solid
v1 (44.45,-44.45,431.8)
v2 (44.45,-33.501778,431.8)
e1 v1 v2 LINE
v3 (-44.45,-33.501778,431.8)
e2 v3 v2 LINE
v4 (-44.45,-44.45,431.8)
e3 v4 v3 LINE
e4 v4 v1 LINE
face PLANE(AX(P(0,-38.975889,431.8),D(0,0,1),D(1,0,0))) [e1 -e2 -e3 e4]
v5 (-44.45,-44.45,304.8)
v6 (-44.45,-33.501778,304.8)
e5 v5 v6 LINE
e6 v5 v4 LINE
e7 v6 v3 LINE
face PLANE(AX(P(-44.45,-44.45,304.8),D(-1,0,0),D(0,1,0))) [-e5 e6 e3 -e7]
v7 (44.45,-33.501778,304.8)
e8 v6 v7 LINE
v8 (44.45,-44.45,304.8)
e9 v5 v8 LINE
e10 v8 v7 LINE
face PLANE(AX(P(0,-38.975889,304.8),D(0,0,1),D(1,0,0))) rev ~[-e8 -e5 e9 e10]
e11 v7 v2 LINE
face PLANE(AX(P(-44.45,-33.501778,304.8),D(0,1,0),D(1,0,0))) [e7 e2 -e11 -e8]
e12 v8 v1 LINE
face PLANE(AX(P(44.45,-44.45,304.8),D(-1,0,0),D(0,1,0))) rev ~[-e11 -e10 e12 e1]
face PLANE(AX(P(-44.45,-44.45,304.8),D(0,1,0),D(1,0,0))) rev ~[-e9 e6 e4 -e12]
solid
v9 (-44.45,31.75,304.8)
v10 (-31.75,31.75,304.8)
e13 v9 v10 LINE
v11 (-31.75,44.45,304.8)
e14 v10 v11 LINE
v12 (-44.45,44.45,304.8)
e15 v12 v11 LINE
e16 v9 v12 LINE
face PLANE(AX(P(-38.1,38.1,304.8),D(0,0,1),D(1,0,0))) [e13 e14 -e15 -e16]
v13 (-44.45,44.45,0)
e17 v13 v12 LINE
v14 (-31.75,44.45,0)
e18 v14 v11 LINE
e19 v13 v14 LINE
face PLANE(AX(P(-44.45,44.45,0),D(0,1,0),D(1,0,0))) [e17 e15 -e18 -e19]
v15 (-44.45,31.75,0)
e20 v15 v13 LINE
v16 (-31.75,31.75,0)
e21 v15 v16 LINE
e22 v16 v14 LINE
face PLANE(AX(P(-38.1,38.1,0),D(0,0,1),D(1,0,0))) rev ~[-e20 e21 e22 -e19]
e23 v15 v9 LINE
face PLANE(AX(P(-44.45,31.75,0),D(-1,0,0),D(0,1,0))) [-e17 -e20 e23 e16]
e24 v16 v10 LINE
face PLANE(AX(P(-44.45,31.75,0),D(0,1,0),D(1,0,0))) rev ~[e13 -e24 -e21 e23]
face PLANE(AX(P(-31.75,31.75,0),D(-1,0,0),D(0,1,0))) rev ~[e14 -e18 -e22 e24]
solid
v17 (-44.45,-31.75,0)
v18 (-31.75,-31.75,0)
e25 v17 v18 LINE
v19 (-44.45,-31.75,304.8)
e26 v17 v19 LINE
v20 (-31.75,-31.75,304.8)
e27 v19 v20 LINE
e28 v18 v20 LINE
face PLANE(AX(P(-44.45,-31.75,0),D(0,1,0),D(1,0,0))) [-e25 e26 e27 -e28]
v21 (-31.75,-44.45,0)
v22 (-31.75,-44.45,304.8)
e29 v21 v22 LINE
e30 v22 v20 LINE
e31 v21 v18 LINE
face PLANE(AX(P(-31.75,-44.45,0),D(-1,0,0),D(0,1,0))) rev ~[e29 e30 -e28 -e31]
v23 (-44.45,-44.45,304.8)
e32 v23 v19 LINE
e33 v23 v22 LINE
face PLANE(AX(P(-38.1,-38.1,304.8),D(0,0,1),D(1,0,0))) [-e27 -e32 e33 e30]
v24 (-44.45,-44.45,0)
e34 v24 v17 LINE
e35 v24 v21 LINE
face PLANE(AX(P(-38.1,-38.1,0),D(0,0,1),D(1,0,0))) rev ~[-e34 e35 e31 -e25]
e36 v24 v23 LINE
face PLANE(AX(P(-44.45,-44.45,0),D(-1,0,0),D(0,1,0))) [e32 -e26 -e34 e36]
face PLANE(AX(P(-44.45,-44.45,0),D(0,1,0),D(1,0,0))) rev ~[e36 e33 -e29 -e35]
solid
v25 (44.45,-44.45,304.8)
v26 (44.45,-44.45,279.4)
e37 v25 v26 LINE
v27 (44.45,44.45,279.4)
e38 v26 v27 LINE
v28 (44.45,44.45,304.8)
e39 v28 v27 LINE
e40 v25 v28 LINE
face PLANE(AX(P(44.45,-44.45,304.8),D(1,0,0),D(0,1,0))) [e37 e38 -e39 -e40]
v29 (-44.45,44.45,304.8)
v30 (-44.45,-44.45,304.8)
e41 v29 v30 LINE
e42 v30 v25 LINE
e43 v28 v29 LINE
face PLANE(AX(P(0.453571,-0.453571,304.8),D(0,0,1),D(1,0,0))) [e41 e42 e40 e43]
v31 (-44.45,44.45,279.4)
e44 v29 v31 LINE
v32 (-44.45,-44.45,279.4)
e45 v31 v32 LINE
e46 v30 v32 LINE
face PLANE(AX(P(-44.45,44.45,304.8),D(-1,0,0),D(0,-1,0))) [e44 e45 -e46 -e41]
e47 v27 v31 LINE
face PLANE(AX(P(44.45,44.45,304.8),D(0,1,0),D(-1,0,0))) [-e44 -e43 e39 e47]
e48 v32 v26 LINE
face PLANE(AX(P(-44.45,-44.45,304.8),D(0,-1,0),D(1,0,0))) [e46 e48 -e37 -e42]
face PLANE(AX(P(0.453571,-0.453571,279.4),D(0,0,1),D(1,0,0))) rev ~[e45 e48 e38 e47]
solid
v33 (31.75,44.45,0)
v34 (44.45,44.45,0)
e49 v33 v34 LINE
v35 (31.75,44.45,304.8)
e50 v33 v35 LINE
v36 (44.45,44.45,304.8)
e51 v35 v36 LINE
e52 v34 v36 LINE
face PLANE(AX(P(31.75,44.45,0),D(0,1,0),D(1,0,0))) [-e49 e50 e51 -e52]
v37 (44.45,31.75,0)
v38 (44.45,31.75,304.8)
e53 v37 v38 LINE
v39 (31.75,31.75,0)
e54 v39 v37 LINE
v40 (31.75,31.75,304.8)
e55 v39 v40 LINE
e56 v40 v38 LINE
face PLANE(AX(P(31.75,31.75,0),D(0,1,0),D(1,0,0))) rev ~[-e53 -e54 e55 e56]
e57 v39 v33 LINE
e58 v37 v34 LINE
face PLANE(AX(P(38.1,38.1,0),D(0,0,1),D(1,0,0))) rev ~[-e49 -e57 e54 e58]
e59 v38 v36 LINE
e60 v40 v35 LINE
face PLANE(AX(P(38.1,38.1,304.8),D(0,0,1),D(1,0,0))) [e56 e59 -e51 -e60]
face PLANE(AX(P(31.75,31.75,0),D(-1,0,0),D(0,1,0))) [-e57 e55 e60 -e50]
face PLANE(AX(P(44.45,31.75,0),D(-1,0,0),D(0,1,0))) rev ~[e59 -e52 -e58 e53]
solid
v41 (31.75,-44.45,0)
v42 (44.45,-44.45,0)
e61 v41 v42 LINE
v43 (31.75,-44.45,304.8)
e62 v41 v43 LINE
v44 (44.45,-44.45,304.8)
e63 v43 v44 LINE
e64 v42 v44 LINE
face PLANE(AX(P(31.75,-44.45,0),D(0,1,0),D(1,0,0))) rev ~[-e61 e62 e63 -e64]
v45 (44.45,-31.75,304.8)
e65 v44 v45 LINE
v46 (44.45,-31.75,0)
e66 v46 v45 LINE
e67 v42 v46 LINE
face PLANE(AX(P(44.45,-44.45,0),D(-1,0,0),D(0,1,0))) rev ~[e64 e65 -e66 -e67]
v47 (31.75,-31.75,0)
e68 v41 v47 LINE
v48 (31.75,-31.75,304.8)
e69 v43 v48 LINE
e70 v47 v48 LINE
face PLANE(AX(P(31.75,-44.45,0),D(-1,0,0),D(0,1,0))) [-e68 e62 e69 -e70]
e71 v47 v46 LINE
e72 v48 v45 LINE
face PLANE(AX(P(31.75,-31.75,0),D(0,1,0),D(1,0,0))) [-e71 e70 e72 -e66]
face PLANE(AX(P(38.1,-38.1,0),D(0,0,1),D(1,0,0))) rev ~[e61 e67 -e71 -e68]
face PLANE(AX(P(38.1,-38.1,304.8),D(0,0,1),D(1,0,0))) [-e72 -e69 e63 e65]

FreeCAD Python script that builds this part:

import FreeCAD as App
import Part
import Sketcher
Q = App.Units.Quantity

doc = App.newDocument("Part")
body = doc.addObject("PartDesign::Body", "Body")

# Sketch on XY plane
sketch1 = body.newObject("Sketcher::SketchObject", "Sketch")
sketch1.AttachmentSupport = (doc.getObject("XY_Plane"), [""])
sketch1.MapMode = "FlatFace"
sketch1.addGeometry([
    Part.LineSegment(App.Vector(-44, -32, 0), App.Vector(-44, -44, 0)),
    Part.LineSegment(App.Vector(-44, -44, 0), App.Vector(-32, -44, 0)),
    Part.LineSegment(App.Vector(-32, -44, 0), App.Vector(-32, -32, 0)),
    Part.LineSegment(App.Vector(-32, -32, 0), App.Vector(-44, -32, 0)),
], False)
sketch1.addConstraint([
    Sketcher.Constraint("Coincident", 0, 2, 1, 1),
    Sketcher.Constraint("Coincident", 1, 2, 2, 1),
    Sketcher.Constraint("Coincident", 2, 2, 3, 1),
    Sketcher.Constraint("Coincident", 3, 2, 0, 1),
    Sketcher.Constraint("Vertical", 0),
    Sketcher.Constraint("Horizontal", 1),
    Sketcher.Constraint("Vertical", 2),
    Sketcher.Constraint("Horizontal", 3),
    Sketcher.Constraint("Equal", 3, 0),
    Sketcher.Constraint("DistanceX", 1, 1, 1, 2, Q("0.5 in")),
    Sketcher.Constraint("DistanceX", 0, 2, -1, 1, Q("1.75 in")),
    Sketcher.Constraint("DistanceY", 0, 2, -1, 1, Q("1.75 in")),
])
pad1 = body.newObject("PartDesign::Pad", "Pad")
pad1.Profile = sketch1
pad1.Length = Q("12 in")
body2 = doc.addObject("PartDesign::Body", "Body001")

# Sketch on XY plane
sketch2 = body2.newObject("Sketcher::SketchObject", "Sketch001")
sketch2.AttachmentSupport = (doc.getObject("XY_Plane001"), [""])
sketch2.MapMode = "FlatFace"
sketch2.addGeometry([
    Part.LineSegment(App.Vector(32, 44, 0), App.Vector(32, 32, 0)),
    Part.LineSegment(App.Vector(32, 32, 0), App.Vector(44, 32, 0)),
    Part.LineSegment(App.Vector(44, 32, 0), App.Vector(44, 44, 0)),
    Part.LineSegment(App.Vector(44, 44, 0), App.Vector(32, 44, 0)),
], False)
sketch2.addConstraint([
    Sketcher.Constraint("Coincident", 0, 2, 1, 1),
    Sketcher.Constraint("Coincident", 1, 2, 2, 1),
    Sketcher.Constraint("Coincident", 2, 2, 3, 1),
    Sketcher.Constraint("Coincident", 3, 2, 0, 1),
    Sketcher.Constraint("Vertical", 0),
    Sketcher.Constraint("Horizontal", 1),
    Sketcher.Constraint("Vertical", 2),
    Sketcher.Constraint("Horizontal", 3),
    Sketcher.Constraint("Equal", 3, 0),
    Sketcher.Constraint("DistanceX", 1, 1, 1, 2, Q("0.5 in")),
    Sketcher.Constraint("DistanceX", -1, 1, 0, 2, Q("1.25 in")),
    Sketcher.Constraint("DistanceY", -1, 1, 0, 2, Q("1.25 in")),
])
pad2 = body2.newObject("PartDesign::Pad", "Pad001")
pad2.Profile = sketch2
pad2.Length = Q("12 in")
body3 = doc.addObject("PartDesign::Body", "Body002")

# Sketch on XY plane
sketch3 = body3.newObject("Sketcher::SketchObject", "Sketch002")
sketch3.AttachmentSupport = (doc.getObject("XY_Plane002"), [""])
sketch3.MapMode = "FlatFace"
sketch3.addGeometry([
    Part.LineSegment(App.Vector(32, -32, 0), App.Vector(32, -44, 0)),
    Part.LineSegment(App.Vector(32, -44, 0), App.Vector(44, -44, 0)),
    Part.LineSegment(App.Vector(44, -44, 0), App.Vector(44, -32, 0)),
    Part.LineSegment(App.Vector(44, -32, 0), App.Vector(32, -32, 0)),
], False)
sketch3.addConstraint([
    Sketcher.Constraint("Coincident", 0, 2, 1, 1),
    Sketcher.Constraint("Coincident", 1, 2, 2, 1),
    Sketcher.Constraint("Coincident", 2, 2, 3, 1),
    Sketcher.Constraint("Coincident", 3, 2, 0, 1),
    Sketcher.Constraint("Vertical", 0),
    Sketcher.Constraint("Horizontal", 1),
    Sketcher.Constraint("Vertical", 2),
    Sketcher.Constraint("Horizontal", 3),
    Sketcher.Constraint("Equal", 3, 0),
    Sketcher.Constraint("DistanceX", 1, 1, 1, 2, Q("0.5 in")),
    Sketcher.Constraint("DistanceX", -1, 1, 0, 2, Q("1.25 in")),
    Sketcher.Constraint("DistanceY", 0, 2, -1, 1, Q("1.75 in")),
])
pad3 = body3.newObject("PartDesign::Pad", "Pad002")
pad3.Profile = sketch3
pad3.Length = Q("12 in")
body4 = doc.addObject("PartDesign::Body", "Body003")

# Sketch on XY plane
sketch4 = body4.newObject("Sketcher::SketchObject", "Sketch003")
sketch4.AttachmentSupport = (doc.getObject("XY_Plane003"), [""])
sketch4.MapMode = "FlatFace"
sketch4.addGeometry([
    Part.LineSegment(App.Vector(-44, 44, 0), App.Vector(-44, 32, 0)),
    Part.LineSegment(App.Vector(-44, 32, 0), App.Vector(-32, 32, 0)),
    Part.LineSegment(App.Vector(-32, 32, 0), App.Vector(-32, 44, 0)),
    Part.LineSegment(App.Vector(-32, 44, 0), App.Vector(-44, 44, 0)),
], False)
sketch4.addConstraint([
    Sketcher.Constraint("Coincident", 0, 2, 1, 1),
    Sketcher.Constraint("Coincident", 1, 2, 2, 1),
    Sketcher.Constraint("Coincident", 2, 2, 3, 1),
    Sketcher.Constraint("Coincident", 3, 2, 0, 1),
    Sketcher.Constraint("Vertical", 0),
    Sketcher.Constraint("Horizontal", 1),
    Sketcher.Constraint("Vertical", 2),
    Sketcher.Constraint("Horizontal", 3),
    Sketcher.Constraint("Equal", 3, 0),
    Sketcher.Constraint("DistanceX", 1, 1, 1, 2, Q("0.5 in")),
    Sketcher.Constraint("DistanceX", 0, 2, -1, 1, Q("1.75 in")),
    Sketcher.Constraint("DistanceY", -1, 1, 0, 2, Q("1.25 in")),
])
pad4 = body4.newObject("PartDesign::Pad", "Pad003")
pad4.Profile = sketch4
pad4.Length = Q("12 in")
body5 = doc.addObject("PartDesign::Body", "Body004")

# Sketch on XY plane
sketch5 = body5.newObject("Sketcher::SketchObject", "Sketch004")
sketch5.AttachmentSupport = (doc.getObject("XY_Plane004"), [""])
sketch5.MapMode = "FlatFace"
sketch5.AttachmentOffset = App.Placement(App.Vector(0, 0, 12 * 25.4), App.Rotation())
sketch5.addGeometry([
    Part.LineSegment(App.Vector(44, 44, 0), App.Vector(-44, 44, 0)),
    Part.LineSegment(App.Vector(-44, 44, 0), App.Vector(-44, -44, 0)),
    Part.LineSegment(App.Vector(-44, -44, 0), App.Vector(44, -44, 0)),
    Part.LineSegment(App.Vector(44, -44, 0), App.Vector(44, 44, 0)),
], False)
sketch5.addConstraint([
    Sketcher.Constraint("Coincident", 0, 2, 1, 1),
    Sketcher.Constraint("Coincident", 1, 2, 2, 1),
    Sketcher.Constraint("Coincident", 2, 2, 3, 1),
    Sketcher.Constraint("Coincident", 3, 2, 0, 1),
    Sketcher.Constraint("Horizontal", 0),
    Sketcher.Constraint("Vertical", 1),
    Sketcher.Constraint("Horizontal", 2),
    Sketcher.Constraint("Vertical", 3),
    Sketcher.Constraint("Symmetric", 0, 2, 2, 2, -1, 1),
    Sketcher.Constraint("Equal", 2, 1),
    Sketcher.Constraint("DistanceX", 0, 2, 0, 1, Q("3.5 in")),
])
pad5 = body5.newObject("PartDesign::Pad", "Pad004")
pad5.Profile = sketch5
pad5.Length = Q("1 in")
pad5.Reversed = True
body6 = doc.addObject("PartDesign::Body", "Body005")

# Sketch on XY plane
sketch6 = body6.newObject("Sketcher::SketchObject", "Sketch005")
sketch6.AttachmentSupport = (doc.getObject("XY_Plane005"), [""])
sketch6.MapMode = "FlatFace"
sketch6.AttachmentOffset = App.Placement(App.Vector(0, 0, 12 * 25.4), App.Rotation())
sketch6.addGeometry([
    Part.LineSegment(App.Vector(-44, -34, 0), App.Vector(-44, -44, 0)),
    Part.LineSegment(App.Vector(-44, -44, 0), App.Vector(44, -44, 0)),
    Part.LineSegment(App.Vector(44, -44, 0), App.Vector(44, -34, 0)),
    Part.LineSegment(App.Vector(44, -34, 0), App.Vector(-44, -34, 0)),
], False)
sketch6.addConstraint([
    Sketcher.Constraint("Coincident", 0, 2, 1, 1),
    Sketcher.Constraint("Coincident", 1, 2, 2, 1),
    Sketcher.Constraint("Coincident", 2, 2, 3, 1),
    Sketcher.Constraint("Coincident", 3, 2, 0, 1),
    Sketcher.Constraint("Vertical", 0),
    Sketcher.Constraint("Horizontal", 1),
    Sketcher.Constraint("Vertical", 2),
    Sketcher.Constraint("Horizontal", 3),
    Sketcher.Constraint("DistanceX", 1, 1, 1, 2, Q("3.5 in")),
    Sketcher.Constraint("DistanceX", 0, 2, -1, 1, Q("1.75 in")),
    Sketcher.Constraint("DistanceY", 0, 2, -1, 1, Q("1.75 in")),
    Sketcher.Constraint("DistanceY", 0, 2, 0, 1, Q("10.948222 mm")),
])
pad6 = body6.newObject("PartDesign::Pad", "Pad005")
pad6.Profile = sketch6
pad6.Length = Q("5 in")

doc.recompute()
